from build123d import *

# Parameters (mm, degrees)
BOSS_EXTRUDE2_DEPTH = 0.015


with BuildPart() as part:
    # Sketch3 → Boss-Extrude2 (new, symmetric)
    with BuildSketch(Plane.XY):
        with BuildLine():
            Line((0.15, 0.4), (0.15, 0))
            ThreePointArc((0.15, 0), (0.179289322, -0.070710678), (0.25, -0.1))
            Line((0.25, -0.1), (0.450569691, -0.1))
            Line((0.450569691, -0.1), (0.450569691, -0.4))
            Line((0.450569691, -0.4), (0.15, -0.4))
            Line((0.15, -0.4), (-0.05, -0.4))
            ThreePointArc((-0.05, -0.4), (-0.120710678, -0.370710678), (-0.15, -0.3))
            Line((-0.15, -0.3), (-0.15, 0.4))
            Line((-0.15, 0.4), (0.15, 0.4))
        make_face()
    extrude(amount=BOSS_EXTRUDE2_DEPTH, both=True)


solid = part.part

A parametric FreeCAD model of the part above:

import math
import FreeCAD as App
import Part
import Sketcher
from FreeCAD import Vector

doc = App.newDocument("Part")
body = doc.addObject("PartDesign::Body", "Body")

# Sketch on XY plane
sketch1 = body.newObject("Sketcher::SketchObject", "Sketch")
sketch1.AttachmentSupport = (doc.getObject("XY_Plane"), [""])
sketch1.MapMode = "FlatFace"
sketch1.addGeometry([
    Part.LineSegment(Vector(0.15, 0, 0), Vector(0.15, 0.4, 0)),  # 0
    Part.LineSegment(Vector(0.15, 0.4, 0), Vector(-0.15, 0.4, 0)),  # 1
    Part.LineSegment(Vector(-0.15, 0.4, 0), Vector(-0.15, -0.3, 0)),  # 2
    Part.ArcOfCircle(Part.Circle(Vector(-0.05, -0.3, 0), Vector(0, 0, 1), 0.1), math.radians(180), math.radians(270)),  # 3
    Part.LineSegment(Vector(-0.05, -0.4, 0), Vector(0.45, -0.4, 0)),  # 4
    Part.LineSegment(Vector(0.45, -0.4, 0), Vector(0.45, -0.1, 0)),  # 5
    Part.LineSegment(Vector(0.45, -0.1, 0), Vector(0.25, -0.1, 0)),  # 6
    Part.ArcOfCircle(Part.Circle(Vector(0.25, 0, 0), Vector(0, 0, 1), 0.1), math.radians(180), math.radians(270)),  # 7
], False)
sketch1.addConstraint([
    Sketcher.Constraint("Coincident", 0, 2, 1, 1),
    Sketcher.Constraint("Coincident", 1, 2, 2, 1),
    Sketcher.Constraint("Tangent", 2, 2, 3, 1),
    Sketcher.Constraint("Tangent", 3, 2, 4, 1),
    Sketcher.Constraint("Coincident", 4, 2, 5, 1),
    Sketcher.Constraint("Coincident", 5, 2, 6, 1),
    Sketcher.Constraint("Tangent", 6, 2, 7, 2),
    Sketcher.Constraint("Tangent", 7, 1, 0, 1),
    Sketcher.Constraint("Vertical", 0),
    Sketcher.Constraint("Horizontal", 1),
    Sketcher.Constraint("Vertical", 2),
    Sketcher.Constraint("Horizontal", 4),
    Sketcher.Constraint("Vertical", 5),
    Sketcher.Constraint("Horizontal", 6),
    Sketcher.Constraint("Equal", 3, 7),
    Sketcher.Constraint("PointOnObject", 7, 3, -1),
    Sketcher.Constraint("Equal", 1, 5),
    Sketcher.Constraint("Radius", 3, 0.1),
    Sketcher.Constraint("DistanceX", 1, 2, 1, 1, 0.3),
    Sketcher.Constraint("DistanceY", 0, 1, 0, 2, 0.4),
    Sketcher.Constraint("DistanceX", 3, 3, -1, 1, 0.05),
    Sketcher.Constraint("DistanceX", 4, 1, 4, 2, 0.50057),
])
pad1 = body.newObject("PartDesign::Pad", "Pad")
pad1.Profile = sketch1
pad1.Length = 0.03
pad1.Midplane = True

doc.recompute()
